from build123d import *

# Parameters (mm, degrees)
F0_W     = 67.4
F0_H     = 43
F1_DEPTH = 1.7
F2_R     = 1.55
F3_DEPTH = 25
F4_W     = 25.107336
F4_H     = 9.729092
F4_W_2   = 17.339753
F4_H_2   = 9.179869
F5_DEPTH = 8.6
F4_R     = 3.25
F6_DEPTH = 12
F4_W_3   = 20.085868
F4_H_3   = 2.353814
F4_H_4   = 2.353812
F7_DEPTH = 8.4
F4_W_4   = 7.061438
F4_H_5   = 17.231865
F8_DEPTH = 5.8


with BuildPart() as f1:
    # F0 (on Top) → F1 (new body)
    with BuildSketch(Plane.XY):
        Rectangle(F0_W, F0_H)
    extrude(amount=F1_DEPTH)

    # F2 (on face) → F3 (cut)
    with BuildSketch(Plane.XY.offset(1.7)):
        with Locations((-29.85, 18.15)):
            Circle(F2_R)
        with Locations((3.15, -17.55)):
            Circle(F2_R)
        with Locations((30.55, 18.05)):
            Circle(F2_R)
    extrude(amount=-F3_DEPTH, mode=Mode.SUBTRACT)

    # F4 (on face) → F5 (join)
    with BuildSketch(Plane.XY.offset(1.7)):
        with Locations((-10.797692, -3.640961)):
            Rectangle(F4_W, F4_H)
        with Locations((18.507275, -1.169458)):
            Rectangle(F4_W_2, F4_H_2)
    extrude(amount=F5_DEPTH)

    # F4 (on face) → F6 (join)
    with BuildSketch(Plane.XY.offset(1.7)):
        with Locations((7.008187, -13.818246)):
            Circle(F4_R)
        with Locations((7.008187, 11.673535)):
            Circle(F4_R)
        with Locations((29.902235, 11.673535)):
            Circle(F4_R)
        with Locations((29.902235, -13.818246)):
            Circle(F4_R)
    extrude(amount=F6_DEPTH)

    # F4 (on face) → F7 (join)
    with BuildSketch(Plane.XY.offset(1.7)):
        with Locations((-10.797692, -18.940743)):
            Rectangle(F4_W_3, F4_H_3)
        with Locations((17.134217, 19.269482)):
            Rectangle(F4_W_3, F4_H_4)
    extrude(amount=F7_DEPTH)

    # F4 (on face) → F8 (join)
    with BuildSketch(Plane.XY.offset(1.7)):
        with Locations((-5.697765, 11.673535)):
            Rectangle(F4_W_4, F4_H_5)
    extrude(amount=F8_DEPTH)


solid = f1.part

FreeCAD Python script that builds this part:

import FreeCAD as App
import Part
import Sketcher

doc = App.newDocument("Part")
body = doc.addObject("PartDesign::Body", "Body")

# Sketch on XY plane
sketch1 = body.newObject("Sketcher::SketchObject", "Sketch")
sketch1.AttachmentSupport = (doc.getObject("XY_Plane"), [""])
sketch1.MapMode = "FlatFace"
sketch1.addGeometry([
    Part.LineSegment(App.Vector(-34, 22, 0), App.Vector(-34, -22, 0)),
    Part.LineSegment(App.Vector(-34, -22, 0), App.Vector(34, -22, 0)),
    Part.LineSegment(App.Vector(34, -22, 0), App.Vector(34, 22, 0)),
    Part.LineSegment(App.Vector(34, 22, 0), App.Vector(-34, 22, 0)),
], False)
sketch1.addConstraint([
    Sketcher.Constraint("Coincident", 0, 2, 1, 1),
    Sketcher.Constraint("Coincident", 1, 2, 2, 1),
    Sketcher.Constraint("Coincident", 2, 2, 3, 1),
    Sketcher.Constraint("Coincident", 3, 2, 0, 1),
    Sketcher.Constraint("Vertical", 0),
    Sketcher.Constraint("Horizontal", 1),
    Sketcher.Constraint("Vertical", 2),
    Sketcher.Constraint("Horizontal", 3),
    Sketcher.Constraint("Symmetric", 0, 2, 2, 2, -1, 1),
    Sketcher.Constraint("DistanceY", 0, 2, 0, 1, 43.0),
    Sketcher.Constraint("DistanceX", 1, 1, 1, 2, 67.4),
])
pad1 = body.newObject("PartDesign::Pad", "Pad")
pad1.Profile = sketch1
pad1.Length = 1.7

# Sketch on XY plane
sketch2 = body.newObject("Sketcher::SketchObject", "Sketch001")
sketch2.AttachmentSupport = (doc.getObject("XY_Plane"), [""])
sketch2.MapMode = "FlatFace"
sketch2.AttachmentOffset = App.Placement(App.Vector(0, 0, 1.7), App.Rotation())
sketch2.addGeometry([
    Part.Circle(App.Vector(-29.9, 18.1, 0), App.Vector(0, 0, 1), 1.6),
    Part.Circle(App.Vector(3.1, -17.6, 0), App.Vector(0, 0, 1), 1.6),
    Part.Circle(App.Vector(30.6, 18.1, 0), App.Vector(0, 0, 1), 1.6),
], False)
sketch2.addConstraint([
    Sketcher.Constraint("Equal", 0, 1),
    Sketcher.Constraint("Equal", 1, 2),
    Sketcher.Constraint("Diameter", 0, 3.1),
    Sketcher.Constraint("DistanceX", 0, 3, 1, 3, 33.0),
    Sketcher.Constraint("DistanceY", 1, 3, 0, 3, 35.7),
    Sketcher.Constraint("DistanceX", 1, 3, 2, 3, 27.4),
    Sketcher.Constraint("DistanceY", 1, 3, 2, 3, 35.6),
    Sketcher.Constraint("DistanceX", 0, 3, -1, 1, 29.85),
    Sketcher.Constraint("DistanceY", -1, 1, 0, 3, 18.15),
])
pocket1 = body.newObject("PartDesign::Pocket", "Pocket")
pocket1.Profile = sketch2
pocket1.Length = 25

# Sketch on XY plane
sketch3 = body.newObject("Sketcher::SketchObject", "Sketch002")
sketch3.AttachmentSupport = (doc.getObject("XY_Plane"), [""])
sketch3.MapMode = "FlatFace"
sketch3.AttachmentOffset = App.Placement(App.Vector(0, 0, 1.7), App.Rotation())
sketch3.addGeometry([
    Part.LineSegment(App.Vector(-23, 1, 0), App.Vector(-23, -9, 0)),  # 0
    Part.LineSegment(App.Vector(-23, -9, 0), App.Vector(2, -9, 0)),  # 1
    Part.LineSegment(App.Vector(2, -9, 0), App.Vector(2, 1, 0)),  # 2
    Part.LineSegment(App.Vector(2, 1, 0), App.Vector(-23, 1, 0)),  # 3
    Part.LineSegment(App.Vector(10, 3, 0), App.Vector(10, -6, 0)),  # 4
    Part.LineSegment(App.Vector(10, -6, 0), App.Vector(27, -6, 0)),  # 5
    Part.LineSegment(App.Vector(27, -6, 0), App.Vector(27, 3, 0)),  # 6
    Part.LineSegment(App.Vector(27, 3, 0), App.Vector(10, 3, 0)),  # 7
], False)
sketch3.addConstraint([
    Sketcher.Constraint("Coincident", 0, 2, 1, 1),
    Sketcher.Constraint("Coincident", 1, 2, 2, 1),
    Sketcher.Constraint("Coincident", 2, 2, 3, 1),
    Sketcher.Constraint("Coincident", 3, 2, 0, 1),
    Sketcher.Constraint("Coincident", 4, 2, 5, 1),
    Sketcher.Constraint("Coincident", 5, 2, 6, 1),
    Sketcher.Constraint("Coincident", 6, 2, 7, 1),
    Sketcher.Constraint("Coincident", 7, 2, 4, 1),
    Sketcher.Constraint("Vertical", 0),
    Sketcher.Constraint("Horizontal", 1),
    Sketcher.Constraint("Vertical", 2),
    Sketcher.Constraint("Horizontal", 3),
    Sketcher.Constraint("Vertical", 4),
    Sketcher.Constraint("Horizontal", 5),
    Sketcher.Constraint("Vertical", 6),
    Sketcher.Constraint("Horizontal", 7),
    Sketcher.Constraint("DistanceY", 4, 2, 4, 1, 9.179869),
    Sketcher.Constraint("DistanceX", -1, 1, 4, 2, 9.837399),
    Sketcher.Constraint("DistanceX", 1, 1, 1, 2, 25.107336),
    Sketcher.Constraint("DistanceX", 5, 1, 5, 2, 17.339753),
    Sketcher.Constraint("DistanceY", 0, 2, 0, 1, 9.729092),
    Sketcher.Constraint("DistanceX", 0, 2, -1, 1, 23.35136),
    Sketcher.Constraint("DistanceY", 2, 2, 6, 2, 2.196891),
    Sketcher.Constraint("DistanceY", 0, 2, -1, 1, 8.505507),
])
pad2 = body.newObject("PartDesign::Pad", "Pad001")
pad2.Profile = sketch3
pad2.Length = 8.6

# Sketch on XY plane
sketch4 = body.newObject("Sketcher::SketchObject", "Sketch003")
sketch4.AttachmentSupport = (doc.getObject("XY_Plane"), [""])
sketch4.MapMode = "FlatFace"
sketch4.AttachmentOffset = App.Placement(App.Vector(0, 0, 1.7), App.Rotation())
sketch4.addGeometry([
    Part.Circle(App.Vector(7, -13.8, 0), App.Vector(0, 0, 1), 3.2),
    Part.Circle(App.Vector(7, 11.7, 0), App.Vector(0, 0, 1), 3.2),
    Part.Circle(App.Vector(29.9, 11.7, 0), App.Vector(0, 0, 1), 3.2),
    Part.Circle(App.Vector(29.9, -13.8, 0), App.Vector(0, 0, 1), 3.2),
], False)
sketch4.addConstraint([
    Sketcher.Constraint("Equal", 0, 1),
    Sketcher.Constraint("Equal", 1, 2),
    Sketcher.Constraint("Equal", 2, 3),
    Sketcher.Constraint("Horizontal", 1, 3, 2, 3),
    Sketcher.Constraint("Horizontal", 0, 3, 3, 3),
    Sketcher.Constraint("Vertical", 0, 3, 1, 3),
    Sketcher.Constraint("Vertical", 2, 3, 3, 3),
    Sketcher.Constraint("Diameter", 0, 6.5),
    Sketcher.Constraint("DistanceY", 0, 3, 1, 3, 25.491781),
    Sketcher.Constraint("DistanceX", 1, 3, 2, 3, 22.894048),
    Sketcher.Constraint("DistanceX", -1, 1, 0, 3, 7.008187),
    Sketcher.Constraint("DistanceY", 0, 3, -1, 1, 13.818246),
])
pad3 = body.newObject("PartDesign::Pad", "Pad002")
pad3.Profile = sketch4
pad3.Length = 12

# Sketch on XY plane
sketch5 = body.newObject("Sketcher::SketchObject", "Sketch004")
sketch5.AttachmentSupport = (doc.getObject("XY_Plane"), [""])
sketch5.MapMode = "FlatFace"
sketch5.AttachmentOffset = App.Placement(App.Vector(0, 0, 1.7), App.Rotation())
sketch5.addGeometry([
    Part.LineSegment(App.Vector(-20.8, -17.8, 0), App.Vector(-20.8, -20.1, 0)),  # 0
    Part.LineSegment(App.Vector(-20.8, -20.1, 0), App.Vector(-0.8, -20.1, 0)),  # 1
    Part.LineSegment(App.Vector(-0.8, -20.1, 0), App.Vector(-0.8, -17.8, 0)),  # 2
    Part.LineSegment(App.Vector(-0.8, -17.8, 0), App.Vector(-20.8, -17.8, 0)),  # 3
    Part.LineSegment(App.Vector(7.1, 20.4, 0), App.Vector(7.1, 18.1, 0)),  # 4
    Part.LineSegment(App.Vector(7.1, 18.1, 0), App.Vector(27.2, 18.1, 0)),  # 5
    Part.LineSegment(App.Vector(27.2, 18.1, 0), App.Vector(27.2, 20.4, 0)),  # 6
    Part.LineSegment(App.Vector(27.2, 20.4, 0), App.Vector(7.1, 20.4, 0)),  # 7
], False)
sketch5.addConstraint([
    Sketcher.Constraint("Coincident", 0, 2, 1, 1),
    Sketcher.Constraint("Coincident", 1, 2, 2, 1),
    Sketcher.Constraint("Coincident", 2, 2, 3, 1),
    Sketcher.Constraint("Coincident", 3, 2, 0, 1),
    Sketcher.Constraint("Coincident", 4, 2, 5, 1),
    Sketcher.Constraint("Coincident", 5, 2, 6, 1),
    Sketcher.Constraint("Coincident", 6, 2, 7, 1),
    Sketcher.Constraint("Coincident", 7, 2, 4, 1),
    Sketcher.Constraint("Vertical", 0),
    Sketcher.Constraint("Horizontal", 1),
    Sketcher.Constraint("Vertical", 2),
    Sketcher.Constraint("Horizontal", 3),
    Sketcher.Constraint("Vertical", 4),
    Sketcher.Constraint("Horizontal", 5),
    Sketcher.Constraint("Vertical", 6),
    Sketcher.Constraint("Horizontal", 7),
    Sketcher.Constraint("Equal", 3, 5),
    Sketcher.Constraint("DistanceX", 1, 1, 1, 2, 20.085868),
    Sketcher.Constraint("DistanceY", 4, 2, 4, 1, 2.353812),
    Sketcher.Constraint("DistanceY", 0, 2, 0, 1, 2.353814),
    Sketcher.Constraint("DistanceY", 0, 2, -1, 1, 20.11765),
    Sketcher.Constraint("DistanceX", 1, 2, -1, 1, 0.754758),
    Sketcher.Constraint("DistanceX", -1, 1, 5, 2, 27.177151),
    Sketcher.Constraint("DistanceY", -1, 1, 4, 2, 18.092576),
])
pad4 = body.newObject("PartDesign::Pad", "Pad003")
pad4.Profile = sketch5
pad4.Length = 8.4

# Sketch on XY plane
sketch6 = body.newObject("Sketcher::SketchObject", "Sketch005")
sketch6.AttachmentSupport = (doc.getObject("XY_Plane"), [""])
sketch6.MapMode = "FlatFace"
sketch6.AttachmentOffset = App.Placement(App.Vector(0, 0, 1.7), App.Rotation())
sketch6.addGeometry([
    Part.LineSegment(App.Vector(-9, 20, 0), App.Vector(-9, 3, 0)),
    Part.LineSegment(App.Vector(-9, 3, 0), App.Vector(-2, 3, 0)),
    Part.LineSegment(App.Vector(-2, 3, 0), App.Vector(-2, 20, 0)),
    Part.LineSegment(App.Vector(-2, 20, 0), App.Vector(-9, 20, 0)),
], False)
sketch6.addConstraint([
    Sketcher.Constraint("Coincident", 0, 2, 1, 1),
    Sketcher.Constraint("Coincident", 1, 2, 2, 1),
    Sketcher.Constraint("Coincident", 2, 2, 3, 1),
    Sketcher.Constraint("Coincident", 3, 2, 0, 1),
    Sketcher.Constraint("Vertical", 0),
    Sketcher.Constraint("Horizontal", 1),
    Sketcher.Constraint("Vertical", 2),
    Sketcher.Constraint("Horizontal", 3),
    Sketcher.Constraint("DistanceX", 1, 1, 1, 2, 7.061438),
    Sketcher.Constraint("DistanceY", 0, 2, 0, 1, 17.231865),
    Sketcher.Constraint("DistanceX", 0, 2, -1, 1, 9.228484),
    Sketcher.Constraint("DistanceY", -1, 1, 0, 2, 3.057602),
])
pad5 = body.newObject("PartDesign::Pad", "Pad004")
pad5.Profile = sketch6
pad5.Length = 5.8

doc.recompute()
